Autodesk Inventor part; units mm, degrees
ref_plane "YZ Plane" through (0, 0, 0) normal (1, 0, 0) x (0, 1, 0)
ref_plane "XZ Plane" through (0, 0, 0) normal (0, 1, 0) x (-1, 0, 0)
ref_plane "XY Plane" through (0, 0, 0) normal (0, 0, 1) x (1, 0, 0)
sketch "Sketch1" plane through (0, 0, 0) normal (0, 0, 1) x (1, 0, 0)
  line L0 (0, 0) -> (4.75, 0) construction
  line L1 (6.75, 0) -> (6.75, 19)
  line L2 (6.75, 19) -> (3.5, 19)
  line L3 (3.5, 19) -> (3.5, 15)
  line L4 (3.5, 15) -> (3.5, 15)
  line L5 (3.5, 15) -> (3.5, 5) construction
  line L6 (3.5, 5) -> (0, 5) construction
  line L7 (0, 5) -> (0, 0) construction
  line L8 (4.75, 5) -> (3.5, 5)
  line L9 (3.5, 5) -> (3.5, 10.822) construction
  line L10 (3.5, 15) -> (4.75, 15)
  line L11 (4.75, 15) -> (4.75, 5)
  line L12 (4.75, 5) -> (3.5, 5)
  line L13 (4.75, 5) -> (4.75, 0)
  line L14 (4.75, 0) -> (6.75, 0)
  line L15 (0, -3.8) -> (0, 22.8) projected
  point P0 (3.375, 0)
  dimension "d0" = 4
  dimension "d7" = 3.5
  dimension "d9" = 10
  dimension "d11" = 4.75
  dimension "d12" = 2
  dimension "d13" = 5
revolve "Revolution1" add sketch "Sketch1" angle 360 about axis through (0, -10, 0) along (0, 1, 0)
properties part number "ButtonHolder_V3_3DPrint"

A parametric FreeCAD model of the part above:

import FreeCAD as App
import Part
import Sketcher
from FreeCAD import Vector


def add_polygon(sketch, points):
    """Adds a closed chain of lines whose ends are joined by coincident constraints."""
    first, n = sketch.GeometryCount, len(points)
    for a, b in zip(points, points[1:] + points[:1]):
        sketch.addGeometry(Part.LineSegment(App.Vector(*a, 0), App.Vector(*b, 0)), False)
    for i in range(n):
        sketch.addConstraint(Sketcher.Constraint("Coincident", first + i, 2, first + (i + 1) % n, 1))

doc = App.newDocument("Part")
body = doc.addObject("PartDesign::Body", "Body")

# Sketch on XY plane
sketch1 = body.newObject("Sketcher::SketchObject", "Sketch")
sketch1.AttachmentSupport = (doc.getObject("XY_Plane"), [""])
sketch1.MapMode = "FlatFace"
add_polygon(sketch1, [(4.8, 0), (6.8, 0), (6.8, 19), (3.5, 19), (3.5, 15), (4.8, 15)])  # lines 0-5
sketch1.addConstraint(Sketcher.Constraint("Horizontal", 0))
sketch1.addConstraint(Sketcher.Constraint("Vertical", 1))
sketch1.addConstraint(Sketcher.Constraint("Horizontal", 2))
sketch1.addConstraint(Sketcher.Constraint("Vertical", 3))
sketch1.addConstraint(Sketcher.Constraint("Horizontal", 4))
sketch1.addConstraint(Sketcher.Constraint("Vertical", 5))
sketch1.addConstraint(Sketcher.Constraint("PointOnObject", 0, 2, -1))
sketch1.addConstraint(Sketcher.Constraint("DistanceX", 0, 1, 0, 2, 2.0))
sketch1.addConstraint(Sketcher.Constraint("DistanceY", 3, 2, 3, 1, 4.0))
sketch1.addConstraint(Sketcher.Constraint("DistanceX", -1, 1, 2, 2, 3.5))
sketch1.addConstraint(Sketcher.Constraint("DistanceY", 1, 1, 1, 2, 19.0))
sketch1.addConstraint(Sketcher.Constraint("DistanceX", -1, 1, 4, 2, 4.75))
revolution = body.newObject("PartDesign::Revolution", "Revolution")
revolution.Profile = sketch1
revolution.ReferenceAxis = (sketch1, ["V_Axis"])
revolution.Angle = 360

doc.recompute()
